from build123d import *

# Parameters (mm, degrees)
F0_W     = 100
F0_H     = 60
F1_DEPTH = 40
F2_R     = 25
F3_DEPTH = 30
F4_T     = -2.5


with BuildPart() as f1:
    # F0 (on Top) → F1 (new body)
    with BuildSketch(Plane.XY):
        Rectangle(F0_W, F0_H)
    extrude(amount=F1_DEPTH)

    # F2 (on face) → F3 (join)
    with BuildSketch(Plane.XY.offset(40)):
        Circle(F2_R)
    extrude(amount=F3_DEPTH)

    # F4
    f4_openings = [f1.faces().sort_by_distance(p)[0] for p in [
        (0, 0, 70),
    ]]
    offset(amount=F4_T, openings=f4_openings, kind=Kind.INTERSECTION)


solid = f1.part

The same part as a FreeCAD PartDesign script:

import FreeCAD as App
import Part
import Sketcher
from FreeCAD import Vector


def faces_at(feature, points):
    """Names of the faces that lie closest to the given points."""
    faces = feature.Shape.Faces
    near = lambda p: min(range(len(faces)), key=lambda i: faces[i].distToShape(Part.Vertex(*p))[0])
    return sorted({f"Face{near(p) + 1}" for p in points})


def add_polygon(sketch, points):
    """Adds a closed chain of lines whose ends are joined by coincident constraints."""
    first, n = sketch.GeometryCount, len(points)
    for a, b in zip(points, points[1:] + points[:1]):
        sketch.addGeometry(Part.LineSegment(App.Vector(*a, 0), App.Vector(*b, 0)), False)
    for i in range(n):
        sketch.addConstraint(Sketcher.Constraint("Coincident", first + i, 2, first + (i + 1) % n, 1))

doc = App.newDocument("Part")
body = doc.addObject("PartDesign::Body", "Body")

sketch1 = body.newObject("Sketcher::SketchObject", "Sketch")
sketch1.AttachmentSupport = (doc.getObject("XY_Plane"), [""])
sketch1.MapMode = "FlatFace"
add_polygon(sketch1, [(-50, 30), (-50, -30), (50, -30), (50, 30)])
sketch1.addConstraint([
    Sketcher.Constraint("Vertical", 0),
    Sketcher.Constraint("Horizontal", 1),
    Sketcher.Constraint("Vertical", 2),
    Sketcher.Constraint("Horizontal", 3),
    Sketcher.Constraint("Symmetric", 0, 2, 2, 2, -1, 1),
    Sketcher.Constraint("DistanceX", 1, 1, 1, 2, 100.0),
    Sketcher.Constraint("DistanceY", 0, 2, 0, 1, 60.0),
])
pad1 = body.newObject("PartDesign::Pad", "Pad")
pad1.Profile = sketch1
pad1.Length = 40

sketch2 = body.newObject("Sketcher::SketchObject", "Sketch001")
sketch2.AttachmentSupport = (doc.getObject("XY_Plane"), [""])
sketch2.MapMode = "FlatFace"
sketch2.AttachmentOffset = App.Placement(Vector(0, 0, 40), App.Rotation())
sketch2.addGeometry(Part.Circle(Vector(0, 0, 0), Vector(0, 0, 1), 25), False)
sketch2.addConstraint([
    Sketcher.Constraint("Coincident", 0, 3, -1, 1),
    Sketcher.Constraint("Diameter", 0, 50.0),
])
pad2 = body.newObject("PartDesign::Pad", "Pad001")
pad2.Profile = sketch2
pad2.Length = 30
doc.recompute()

thickness = body.newObject("PartDesign::Thickness", "Thickness")
thickness.Base = (pad2, faces_at(pad2, [(0, 0, 70)]))
thickness.Value = 2.5
thickness.Reversed = True
thickness.Join = "Intersection"

doc.recompute()
